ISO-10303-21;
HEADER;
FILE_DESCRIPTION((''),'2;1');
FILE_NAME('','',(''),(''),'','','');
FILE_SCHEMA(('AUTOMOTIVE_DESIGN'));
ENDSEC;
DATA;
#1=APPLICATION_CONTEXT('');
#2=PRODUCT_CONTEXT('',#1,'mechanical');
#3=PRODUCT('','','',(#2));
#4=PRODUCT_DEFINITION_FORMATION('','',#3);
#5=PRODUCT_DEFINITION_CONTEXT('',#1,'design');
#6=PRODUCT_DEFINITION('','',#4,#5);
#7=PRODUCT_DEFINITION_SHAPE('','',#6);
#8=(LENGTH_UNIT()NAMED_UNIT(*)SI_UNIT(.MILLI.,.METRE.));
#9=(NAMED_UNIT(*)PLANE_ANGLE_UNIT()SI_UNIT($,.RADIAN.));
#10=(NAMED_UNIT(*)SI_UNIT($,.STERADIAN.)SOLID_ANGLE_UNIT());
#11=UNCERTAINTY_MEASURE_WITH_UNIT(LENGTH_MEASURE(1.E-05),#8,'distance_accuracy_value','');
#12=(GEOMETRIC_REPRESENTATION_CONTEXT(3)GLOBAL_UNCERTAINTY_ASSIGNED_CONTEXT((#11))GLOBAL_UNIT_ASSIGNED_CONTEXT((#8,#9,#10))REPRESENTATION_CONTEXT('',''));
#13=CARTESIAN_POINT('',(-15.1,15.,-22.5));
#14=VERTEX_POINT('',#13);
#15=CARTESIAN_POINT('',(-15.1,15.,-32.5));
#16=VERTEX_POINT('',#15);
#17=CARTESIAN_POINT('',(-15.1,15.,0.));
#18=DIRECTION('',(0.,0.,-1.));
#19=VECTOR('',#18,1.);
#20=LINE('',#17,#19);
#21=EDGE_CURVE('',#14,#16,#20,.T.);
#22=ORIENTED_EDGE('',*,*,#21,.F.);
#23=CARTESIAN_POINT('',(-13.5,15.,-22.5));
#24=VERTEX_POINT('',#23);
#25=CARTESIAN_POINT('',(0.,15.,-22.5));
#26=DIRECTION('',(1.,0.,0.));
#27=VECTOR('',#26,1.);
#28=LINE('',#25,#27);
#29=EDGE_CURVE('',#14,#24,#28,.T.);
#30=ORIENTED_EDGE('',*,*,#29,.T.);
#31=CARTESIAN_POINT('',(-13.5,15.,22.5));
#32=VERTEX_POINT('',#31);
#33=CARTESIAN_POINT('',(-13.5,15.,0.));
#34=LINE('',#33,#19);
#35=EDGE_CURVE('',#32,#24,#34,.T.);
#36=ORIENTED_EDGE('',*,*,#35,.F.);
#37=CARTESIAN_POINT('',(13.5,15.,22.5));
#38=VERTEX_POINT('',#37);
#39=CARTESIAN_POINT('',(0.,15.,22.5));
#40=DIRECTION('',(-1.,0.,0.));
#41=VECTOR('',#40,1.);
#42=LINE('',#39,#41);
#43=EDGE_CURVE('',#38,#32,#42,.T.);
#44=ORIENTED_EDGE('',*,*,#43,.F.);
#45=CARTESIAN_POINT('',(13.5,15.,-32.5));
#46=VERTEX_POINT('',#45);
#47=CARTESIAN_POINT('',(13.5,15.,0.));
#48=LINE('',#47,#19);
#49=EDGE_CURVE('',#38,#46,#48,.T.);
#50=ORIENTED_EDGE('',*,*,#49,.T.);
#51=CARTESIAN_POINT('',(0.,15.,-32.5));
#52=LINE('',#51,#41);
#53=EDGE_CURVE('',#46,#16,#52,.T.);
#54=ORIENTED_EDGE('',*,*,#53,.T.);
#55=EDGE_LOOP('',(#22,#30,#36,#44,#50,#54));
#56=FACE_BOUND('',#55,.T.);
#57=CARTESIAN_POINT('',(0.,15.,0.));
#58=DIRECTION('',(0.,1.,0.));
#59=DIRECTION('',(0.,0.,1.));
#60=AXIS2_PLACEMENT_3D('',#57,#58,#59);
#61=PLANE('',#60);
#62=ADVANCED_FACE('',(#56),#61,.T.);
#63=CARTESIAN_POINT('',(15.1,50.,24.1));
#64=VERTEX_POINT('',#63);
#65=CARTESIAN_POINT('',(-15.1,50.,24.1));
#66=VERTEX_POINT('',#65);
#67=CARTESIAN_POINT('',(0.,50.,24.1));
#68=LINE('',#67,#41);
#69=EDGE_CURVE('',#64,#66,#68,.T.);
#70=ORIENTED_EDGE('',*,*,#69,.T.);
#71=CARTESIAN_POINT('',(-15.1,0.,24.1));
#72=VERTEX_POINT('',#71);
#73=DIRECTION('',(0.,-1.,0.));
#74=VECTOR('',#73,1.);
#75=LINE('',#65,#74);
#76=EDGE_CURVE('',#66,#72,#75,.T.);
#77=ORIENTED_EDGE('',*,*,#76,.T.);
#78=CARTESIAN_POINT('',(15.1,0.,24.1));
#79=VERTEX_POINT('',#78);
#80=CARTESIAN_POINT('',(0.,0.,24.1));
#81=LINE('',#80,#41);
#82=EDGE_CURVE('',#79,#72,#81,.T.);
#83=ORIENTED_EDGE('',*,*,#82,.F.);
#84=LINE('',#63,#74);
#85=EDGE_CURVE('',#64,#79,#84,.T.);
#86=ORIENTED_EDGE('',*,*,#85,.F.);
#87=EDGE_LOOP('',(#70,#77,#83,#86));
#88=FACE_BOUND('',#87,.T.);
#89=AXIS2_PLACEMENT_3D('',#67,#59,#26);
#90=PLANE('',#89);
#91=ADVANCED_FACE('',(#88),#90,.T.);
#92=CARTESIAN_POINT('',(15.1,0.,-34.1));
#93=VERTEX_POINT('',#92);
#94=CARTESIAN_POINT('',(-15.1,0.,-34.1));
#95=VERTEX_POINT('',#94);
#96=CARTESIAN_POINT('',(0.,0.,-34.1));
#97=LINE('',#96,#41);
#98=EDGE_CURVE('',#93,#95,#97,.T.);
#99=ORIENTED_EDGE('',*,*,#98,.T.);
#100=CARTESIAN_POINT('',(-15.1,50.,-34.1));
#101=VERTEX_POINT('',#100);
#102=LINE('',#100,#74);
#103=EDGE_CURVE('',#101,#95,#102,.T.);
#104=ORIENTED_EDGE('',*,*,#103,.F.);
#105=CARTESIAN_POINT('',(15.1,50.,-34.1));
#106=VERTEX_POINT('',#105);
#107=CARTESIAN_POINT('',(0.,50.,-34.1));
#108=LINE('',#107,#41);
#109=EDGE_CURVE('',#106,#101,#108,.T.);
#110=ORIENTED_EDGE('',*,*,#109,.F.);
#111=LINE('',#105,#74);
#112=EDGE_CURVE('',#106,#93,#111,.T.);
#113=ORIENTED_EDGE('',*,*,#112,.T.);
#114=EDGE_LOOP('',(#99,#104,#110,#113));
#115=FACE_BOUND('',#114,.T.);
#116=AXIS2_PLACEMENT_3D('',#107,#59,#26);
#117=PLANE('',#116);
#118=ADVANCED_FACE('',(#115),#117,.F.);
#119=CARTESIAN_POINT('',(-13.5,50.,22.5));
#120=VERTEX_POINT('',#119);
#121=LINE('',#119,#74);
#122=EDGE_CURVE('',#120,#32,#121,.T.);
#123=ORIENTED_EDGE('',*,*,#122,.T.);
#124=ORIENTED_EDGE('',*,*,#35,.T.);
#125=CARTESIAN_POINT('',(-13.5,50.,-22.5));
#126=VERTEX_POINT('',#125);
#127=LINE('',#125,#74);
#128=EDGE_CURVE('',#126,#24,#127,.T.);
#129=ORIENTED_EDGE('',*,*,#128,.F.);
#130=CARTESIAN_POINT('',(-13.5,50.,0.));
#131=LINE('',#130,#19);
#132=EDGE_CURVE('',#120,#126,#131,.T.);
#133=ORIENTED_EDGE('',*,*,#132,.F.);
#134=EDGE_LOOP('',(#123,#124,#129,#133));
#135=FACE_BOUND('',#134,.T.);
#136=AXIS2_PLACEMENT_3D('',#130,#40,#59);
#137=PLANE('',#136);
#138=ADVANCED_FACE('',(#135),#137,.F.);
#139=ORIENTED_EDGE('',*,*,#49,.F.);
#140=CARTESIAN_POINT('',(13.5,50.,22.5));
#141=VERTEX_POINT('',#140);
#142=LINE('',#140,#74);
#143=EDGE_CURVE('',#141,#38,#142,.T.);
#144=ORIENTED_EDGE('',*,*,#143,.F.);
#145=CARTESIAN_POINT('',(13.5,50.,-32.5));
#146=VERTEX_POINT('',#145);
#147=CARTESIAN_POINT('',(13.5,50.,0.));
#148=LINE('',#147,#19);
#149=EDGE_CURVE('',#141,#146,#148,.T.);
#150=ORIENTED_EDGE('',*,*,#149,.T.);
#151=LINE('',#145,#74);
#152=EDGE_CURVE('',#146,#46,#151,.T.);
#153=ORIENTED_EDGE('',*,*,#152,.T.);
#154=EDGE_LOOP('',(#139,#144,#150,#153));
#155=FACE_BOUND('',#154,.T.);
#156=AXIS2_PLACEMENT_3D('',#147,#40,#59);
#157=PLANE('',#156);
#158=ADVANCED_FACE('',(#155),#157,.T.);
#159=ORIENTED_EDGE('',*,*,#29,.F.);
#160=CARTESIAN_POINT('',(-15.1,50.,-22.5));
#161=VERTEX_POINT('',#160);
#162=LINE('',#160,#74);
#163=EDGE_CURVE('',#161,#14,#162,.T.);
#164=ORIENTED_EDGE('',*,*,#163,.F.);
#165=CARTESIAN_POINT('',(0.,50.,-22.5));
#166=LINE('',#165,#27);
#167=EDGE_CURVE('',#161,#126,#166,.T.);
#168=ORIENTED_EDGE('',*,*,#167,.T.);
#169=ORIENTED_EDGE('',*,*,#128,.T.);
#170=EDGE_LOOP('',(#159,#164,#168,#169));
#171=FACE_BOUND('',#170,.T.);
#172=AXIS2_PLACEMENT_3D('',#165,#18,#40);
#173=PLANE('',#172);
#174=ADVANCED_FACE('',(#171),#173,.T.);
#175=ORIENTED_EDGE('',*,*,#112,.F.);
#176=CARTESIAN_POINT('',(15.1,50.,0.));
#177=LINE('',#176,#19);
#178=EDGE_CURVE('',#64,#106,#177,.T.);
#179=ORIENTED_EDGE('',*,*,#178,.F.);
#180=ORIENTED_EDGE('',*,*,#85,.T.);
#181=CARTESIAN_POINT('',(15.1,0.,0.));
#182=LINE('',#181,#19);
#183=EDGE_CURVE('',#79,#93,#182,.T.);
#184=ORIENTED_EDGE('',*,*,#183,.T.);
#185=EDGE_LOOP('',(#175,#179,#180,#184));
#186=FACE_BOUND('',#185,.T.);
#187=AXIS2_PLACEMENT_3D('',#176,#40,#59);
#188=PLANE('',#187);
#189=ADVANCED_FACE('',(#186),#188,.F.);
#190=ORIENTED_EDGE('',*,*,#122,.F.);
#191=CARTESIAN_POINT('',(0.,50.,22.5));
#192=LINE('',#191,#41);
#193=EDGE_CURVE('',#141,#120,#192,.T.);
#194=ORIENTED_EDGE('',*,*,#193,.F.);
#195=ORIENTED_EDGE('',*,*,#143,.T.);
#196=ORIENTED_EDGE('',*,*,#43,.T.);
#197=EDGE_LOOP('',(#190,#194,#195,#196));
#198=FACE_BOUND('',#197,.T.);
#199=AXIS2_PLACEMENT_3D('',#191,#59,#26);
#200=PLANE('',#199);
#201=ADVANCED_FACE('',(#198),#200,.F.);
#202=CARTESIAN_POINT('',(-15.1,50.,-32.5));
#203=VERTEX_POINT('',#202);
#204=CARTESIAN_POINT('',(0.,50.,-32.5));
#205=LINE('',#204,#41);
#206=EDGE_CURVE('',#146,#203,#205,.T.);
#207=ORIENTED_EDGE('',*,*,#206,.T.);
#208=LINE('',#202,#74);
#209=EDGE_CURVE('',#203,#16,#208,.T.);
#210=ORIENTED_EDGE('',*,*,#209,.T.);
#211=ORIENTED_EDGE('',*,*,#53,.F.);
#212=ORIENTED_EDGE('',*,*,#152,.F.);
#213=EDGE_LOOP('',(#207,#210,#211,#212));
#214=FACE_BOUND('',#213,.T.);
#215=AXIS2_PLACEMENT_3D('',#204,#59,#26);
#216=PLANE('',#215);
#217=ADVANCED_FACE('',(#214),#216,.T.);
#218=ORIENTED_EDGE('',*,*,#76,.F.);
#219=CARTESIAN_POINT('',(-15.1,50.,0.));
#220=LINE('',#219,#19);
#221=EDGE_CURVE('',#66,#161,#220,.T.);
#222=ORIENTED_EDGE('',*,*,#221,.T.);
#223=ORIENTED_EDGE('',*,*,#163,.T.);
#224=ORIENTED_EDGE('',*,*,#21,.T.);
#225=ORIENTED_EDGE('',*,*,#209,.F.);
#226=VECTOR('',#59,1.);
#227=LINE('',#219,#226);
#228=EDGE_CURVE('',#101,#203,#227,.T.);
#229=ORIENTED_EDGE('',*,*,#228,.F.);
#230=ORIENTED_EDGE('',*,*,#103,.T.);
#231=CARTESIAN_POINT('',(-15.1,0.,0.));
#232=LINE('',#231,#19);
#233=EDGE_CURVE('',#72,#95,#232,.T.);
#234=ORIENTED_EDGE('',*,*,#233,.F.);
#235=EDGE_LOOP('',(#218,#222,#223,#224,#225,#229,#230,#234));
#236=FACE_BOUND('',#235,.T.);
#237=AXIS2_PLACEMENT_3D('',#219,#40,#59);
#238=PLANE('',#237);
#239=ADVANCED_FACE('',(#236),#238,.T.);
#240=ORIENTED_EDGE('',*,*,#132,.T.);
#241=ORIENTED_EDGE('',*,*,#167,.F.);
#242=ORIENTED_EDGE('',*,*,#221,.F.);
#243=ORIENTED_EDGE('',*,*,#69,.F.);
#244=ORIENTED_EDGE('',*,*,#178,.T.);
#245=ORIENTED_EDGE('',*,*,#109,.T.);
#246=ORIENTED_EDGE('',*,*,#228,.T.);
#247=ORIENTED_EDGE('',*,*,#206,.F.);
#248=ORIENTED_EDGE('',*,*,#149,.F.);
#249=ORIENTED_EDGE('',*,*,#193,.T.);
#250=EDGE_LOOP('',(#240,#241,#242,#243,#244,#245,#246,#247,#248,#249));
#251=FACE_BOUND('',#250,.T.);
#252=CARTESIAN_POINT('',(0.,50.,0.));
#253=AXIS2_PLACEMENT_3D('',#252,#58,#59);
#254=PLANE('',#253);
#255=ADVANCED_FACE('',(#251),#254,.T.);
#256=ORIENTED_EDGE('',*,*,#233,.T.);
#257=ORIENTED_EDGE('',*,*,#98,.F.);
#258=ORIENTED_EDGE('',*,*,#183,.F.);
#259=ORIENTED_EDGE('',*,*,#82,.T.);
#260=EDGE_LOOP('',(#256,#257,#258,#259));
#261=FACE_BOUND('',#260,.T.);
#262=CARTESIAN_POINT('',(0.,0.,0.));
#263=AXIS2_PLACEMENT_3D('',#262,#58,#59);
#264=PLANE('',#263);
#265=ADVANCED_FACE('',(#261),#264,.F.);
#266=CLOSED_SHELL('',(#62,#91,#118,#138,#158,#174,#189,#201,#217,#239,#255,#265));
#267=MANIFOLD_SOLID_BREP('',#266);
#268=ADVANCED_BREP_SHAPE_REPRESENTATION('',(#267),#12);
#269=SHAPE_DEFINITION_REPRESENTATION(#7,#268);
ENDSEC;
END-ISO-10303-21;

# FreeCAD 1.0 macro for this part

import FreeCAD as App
import Part
import Sketcher
Q = App.Units.Quantity

doc = App.newDocument("Part")
body = doc.addObject("PartDesign::Body", "Body")

# Sketch on XZ plane
sketch1 = body.newObject("Sketcher::SketchObject", "Sketch")
sketch1.AttachmentSupport = (doc.getObject("XZ_Plane"), [""])
sketch1.MapMode = "FlatFace"
sketch1.addGeometry(Part.LineSegment(App.Vector(13.5, 22.5, 0), App.Vector(-13.5, 22.5, 0)), False)
sketch1.addGeometry(Part.LineSegment(App.Vector(-13.5, 22.5, 0), App.Vector(-13.5, -22.5, 0)), False)
sketch1.addGeometry(Part.LineSegment(App.Vector(-13.5, -22.5, 0), App.Vector(-15.1, -22.5, 0)), False)
sketch1.addGeometry(Part.LineSegment(App.Vector(-15.1, -22.5, 0), App.Vector(-15.1, 24.1, 0)), False)
sketch1.addGeometry(Part.LineSegment(App.Vector(-15.1, 24.1, 0), App.Vector(15.1, 24.1, 0)), False)
sketch1.addGeometry(Part.LineSegment(App.Vector(15.1, 24.1, 0), App.Vector(15.1, -34.1, 0)), False)
sketch1.addGeometry(Part.LineSegment(App.Vector(15.1, -34.1, 0), App.Vector(-15.1, -34.1, 0)), False)
sketch1.addGeometry(Part.LineSegment(App.Vector(-15.1, -34.1, 0), App.Vector(-15.1, -32.5, 0)), False)
sketch1.addGeometry(Part.LineSegment(App.Vector(-15.1, -32.5, 0), App.Vector(13.5, -32.5, 0)), False)
sketch1.addGeometry(Part.LineSegment(App.Vector(13.5, -32.5, 0), App.Vector(13.5, 22.5, 0)), False)
sketch1.addConstraint(Sketcher.Constraint("Coincident", 0, 2, 1, 1))
sketch1.addConstraint(Sketcher.Constraint("Coincident", 1, 2, 2, 1))
sketch1.addConstraint(Sketcher.Constraint("Coincident", 2, 2, 3, 1))
sketch1.addConstraint(Sketcher.Constraint("Coincident", 3, 2, 4, 1))
sketch1.addConstraint(Sketcher.Constraint("Coincident", 4, 2, 5, 1))
sketch1.addConstraint(Sketcher.Constraint("Coincident", 5, 2, 6, 1))
sketch1.addConstraint(Sketcher.Constraint("Coincident", 6, 2, 7, 1))
sketch1.addConstraint(Sketcher.Constraint("Coincident", 7, 2, 8, 1))
sketch1.addConstraint(Sketcher.Constraint("Coincident", 8, 2, 9, 1))
sketch1.addConstraint(Sketcher.Constraint("Coincident", 9, 2, 0, 1))
sketch1.addConstraint(Sketcher.Constraint("Horizontal", 0))
sketch1.addConstraint(Sketcher.Constraint("Vertical", 1))
sketch1.addConstraint(Sketcher.Constraint("Horizontal", 2))
sketch1.addConstraint(Sketcher.Constraint("Vertical", 3))
sketch1.addConstraint(Sketcher.Constraint("Horizontal", 4))
sketch1.addConstraint(Sketcher.Constraint("Vertical", 5))
sketch1.addConstraint(Sketcher.Constraint("Horizontal", 6))
sketch1.addConstraint(Sketcher.Constraint("Vertical", 7))
sketch1.addConstraint(Sketcher.Constraint("Horizontal", 8))
sketch1.addConstraint(Sketcher.Constraint("Vertical", 9))
sketch1.addConstraint(Sketcher.Constraint("Symmetric", 1, 2, 9, 2, -1, 1))
sketch1.addConstraint(Sketcher.Constraint("Vertical", 3, 2, 6, 2))
sketch1.addConstraint(Sketcher.Constraint("Equal", 2, 7))
sketch1.addConstraint(Sketcher.Constraint("DistanceX", 0, 2, 0, 1, Q("27 mm")))
sketch1.addConstraint(Sketcher.Constraint("DistanceY", 1, 2, 1, 1, Q("45 mm")))
sketch1.addConstraint(Sketcher.Constraint("DistanceY", 9, 1, 9, 2, Q("55 mm")))
sketch1.addConstraint(Sketcher.Constraint("DistanceX", 2, 2, 2, 1, Q("1.6 mm")))
sketch1.addConstraint(Sketcher.Constraint("DistanceX", 4, 1, 4, 2, Q("30.2 mm")))
sketch1.addConstraint(Sketcher.Constraint("DistanceY", 3, 1, 3, 2, Q("46.6 mm")))
pad1 = body.newObject("PartDesign::Pad", "Pad")
pad1.Profile = sketch1
pad1.Length = 50
pad1.Reversed = True

# Sketch on XZ plane
sketch2 = body.newObject("Sketcher::SketchObject", "Sketch001")
sketch2.AttachmentSupport = (doc.getObject("XZ_Plane"), [""])
sketch2.MapMode = "FlatFace"
sketch2.addGeometry(Part.LineSegment(App.Vector(-15.1, 24.1, 0), App.Vector(15.1, 24.1, 0)), False)
sketch2.addGeometry(Part.LineSegment(App.Vector(15.1, 24.1, 0), App.Vector(15.1, -34.1, 0)), False)
sketch2.addGeometry(Part.LineSegment(App.Vector(15.1, -34.1, 0), App.Vector(-15.1, -34.1, 0)), False)
sketch2.addGeometry(Part.LineSegment(App.Vector(-15.1, -34.1, 0), App.Vector(-15.1, 24.1, 0)), False)
sketch2.addConstraint(Sketcher.Constraint("Coincident", 0, 2, 1, 1))
sketch2.addConstraint(Sketcher.Constraint("Coincident", 1, 2, 2, 1))
sketch2.addConstraint(Sketcher.Constraint("Coincident", 2, 2, 3, 1))
sketch2.addConstraint(Sketcher.Constraint("Coincident", 3, 2, 0, 1))
sketch2.addConstraint(Sketcher.Constraint("Horizontal", 0))
sketch2.addConstraint(Sketcher.Constraint("Vertical", 1))
sketch2.addConstraint(Sketcher.Constraint("Horizontal", 2))
sketch2.addConstraint(Sketcher.Constraint("Vertical", 3))
sketch2.addConstraint(Sketcher.Constraint("DistanceX", 0, 1, 0, 2, Q("30.2 mm")))
sketch2.addConstraint(Sketcher.Constraint("DistanceY", 1, 2, 1, 1, Q("58.2 mm")))
sketch2.addConstraint(Sketcher.Constraint("DistanceX", -1, 1, 0, 2, Q("15.1 mm")))
sketch2.addConstraint(Sketcher.Constraint("DistanceY", -1, 1, 0, 2, Q("24.1 mm")))
pad2 = body.newObject("PartDesign::Pad", "Pad001")
pad2.Profile = sketch2
pad2.Length = 15
pad2.Reversed = True

doc.recompute()
